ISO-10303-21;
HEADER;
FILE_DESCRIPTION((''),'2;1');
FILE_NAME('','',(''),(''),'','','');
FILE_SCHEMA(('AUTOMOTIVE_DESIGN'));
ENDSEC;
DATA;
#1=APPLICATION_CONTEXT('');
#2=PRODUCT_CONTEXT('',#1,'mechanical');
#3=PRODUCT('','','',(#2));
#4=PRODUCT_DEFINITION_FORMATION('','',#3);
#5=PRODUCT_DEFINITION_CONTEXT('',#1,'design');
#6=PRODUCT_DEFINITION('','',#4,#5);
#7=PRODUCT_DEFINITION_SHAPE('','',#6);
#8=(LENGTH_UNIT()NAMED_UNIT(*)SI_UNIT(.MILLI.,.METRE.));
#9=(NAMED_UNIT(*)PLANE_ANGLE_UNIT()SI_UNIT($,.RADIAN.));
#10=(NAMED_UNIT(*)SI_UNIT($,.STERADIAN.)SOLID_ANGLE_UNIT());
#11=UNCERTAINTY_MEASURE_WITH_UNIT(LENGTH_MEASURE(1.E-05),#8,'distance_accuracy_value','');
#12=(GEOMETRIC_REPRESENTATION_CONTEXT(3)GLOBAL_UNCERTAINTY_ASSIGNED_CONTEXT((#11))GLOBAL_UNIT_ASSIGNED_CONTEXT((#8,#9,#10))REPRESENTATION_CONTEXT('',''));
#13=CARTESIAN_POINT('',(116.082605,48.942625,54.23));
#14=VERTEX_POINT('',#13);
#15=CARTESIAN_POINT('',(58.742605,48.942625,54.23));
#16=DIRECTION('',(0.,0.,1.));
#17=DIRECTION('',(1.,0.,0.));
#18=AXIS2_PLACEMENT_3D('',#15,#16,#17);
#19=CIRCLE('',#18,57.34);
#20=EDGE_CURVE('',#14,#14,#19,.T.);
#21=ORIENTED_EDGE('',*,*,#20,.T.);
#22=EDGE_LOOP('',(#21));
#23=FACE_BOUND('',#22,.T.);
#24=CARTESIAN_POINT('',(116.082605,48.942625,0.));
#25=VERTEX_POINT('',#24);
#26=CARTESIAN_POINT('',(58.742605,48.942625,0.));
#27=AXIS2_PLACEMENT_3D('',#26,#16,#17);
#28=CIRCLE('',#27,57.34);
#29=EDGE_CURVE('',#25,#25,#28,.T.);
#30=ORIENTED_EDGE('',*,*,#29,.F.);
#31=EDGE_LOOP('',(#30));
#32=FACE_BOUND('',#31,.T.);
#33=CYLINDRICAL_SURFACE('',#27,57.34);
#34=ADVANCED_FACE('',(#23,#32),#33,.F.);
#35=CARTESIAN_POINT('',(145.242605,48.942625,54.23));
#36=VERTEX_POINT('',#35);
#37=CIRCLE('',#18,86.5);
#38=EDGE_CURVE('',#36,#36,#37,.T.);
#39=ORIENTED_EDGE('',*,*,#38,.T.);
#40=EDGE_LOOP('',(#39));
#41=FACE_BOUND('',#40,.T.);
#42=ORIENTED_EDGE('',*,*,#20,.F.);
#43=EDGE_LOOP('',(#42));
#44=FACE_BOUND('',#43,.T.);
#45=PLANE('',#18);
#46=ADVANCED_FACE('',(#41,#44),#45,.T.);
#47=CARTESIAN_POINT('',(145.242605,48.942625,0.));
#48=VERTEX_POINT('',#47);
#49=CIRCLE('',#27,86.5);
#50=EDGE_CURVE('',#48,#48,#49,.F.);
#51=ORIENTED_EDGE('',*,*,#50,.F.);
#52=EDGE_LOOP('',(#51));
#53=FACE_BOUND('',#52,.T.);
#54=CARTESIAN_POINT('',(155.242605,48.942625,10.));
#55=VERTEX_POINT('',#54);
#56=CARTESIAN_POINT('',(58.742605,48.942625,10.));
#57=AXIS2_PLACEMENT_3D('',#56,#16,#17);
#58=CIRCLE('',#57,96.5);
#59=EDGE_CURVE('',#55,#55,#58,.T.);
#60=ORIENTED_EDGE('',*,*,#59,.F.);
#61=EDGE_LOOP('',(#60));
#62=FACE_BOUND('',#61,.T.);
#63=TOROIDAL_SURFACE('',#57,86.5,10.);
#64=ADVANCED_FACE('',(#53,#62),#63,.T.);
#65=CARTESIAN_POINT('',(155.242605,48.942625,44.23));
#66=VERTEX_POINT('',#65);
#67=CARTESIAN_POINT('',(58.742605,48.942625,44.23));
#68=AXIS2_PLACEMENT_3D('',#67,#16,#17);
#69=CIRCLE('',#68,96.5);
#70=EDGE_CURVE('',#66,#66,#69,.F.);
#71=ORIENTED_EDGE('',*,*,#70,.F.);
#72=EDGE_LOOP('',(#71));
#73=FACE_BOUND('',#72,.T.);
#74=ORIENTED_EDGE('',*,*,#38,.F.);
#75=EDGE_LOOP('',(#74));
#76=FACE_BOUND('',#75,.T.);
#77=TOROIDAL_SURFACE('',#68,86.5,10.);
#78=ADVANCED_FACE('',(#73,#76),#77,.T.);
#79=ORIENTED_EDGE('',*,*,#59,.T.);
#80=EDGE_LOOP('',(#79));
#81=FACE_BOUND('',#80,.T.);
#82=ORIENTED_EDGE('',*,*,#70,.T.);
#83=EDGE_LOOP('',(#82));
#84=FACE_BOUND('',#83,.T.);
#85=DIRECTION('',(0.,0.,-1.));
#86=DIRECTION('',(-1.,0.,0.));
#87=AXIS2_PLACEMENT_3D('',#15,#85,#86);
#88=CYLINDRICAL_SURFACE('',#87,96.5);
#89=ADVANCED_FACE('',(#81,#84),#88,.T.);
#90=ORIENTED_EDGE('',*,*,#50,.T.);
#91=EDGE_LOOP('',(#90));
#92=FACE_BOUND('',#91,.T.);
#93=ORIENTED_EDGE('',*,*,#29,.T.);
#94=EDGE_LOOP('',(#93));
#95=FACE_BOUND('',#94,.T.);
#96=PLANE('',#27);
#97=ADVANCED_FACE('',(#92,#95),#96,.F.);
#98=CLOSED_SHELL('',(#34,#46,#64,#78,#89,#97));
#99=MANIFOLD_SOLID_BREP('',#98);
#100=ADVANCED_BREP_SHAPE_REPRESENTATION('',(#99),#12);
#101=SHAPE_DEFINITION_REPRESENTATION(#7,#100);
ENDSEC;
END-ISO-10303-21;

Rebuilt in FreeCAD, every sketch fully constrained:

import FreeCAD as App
import Part
import Sketcher
Q = App.Units.Quantity


def edges_at(feature, points):
    """Names of the edges that pass closest to the given points."""
    edges = feature.Shape.Edges
    near = lambda p: min(range(len(edges)), key=lambda i: edges[i].distToShape(Part.Vertex(*p))[0])
    return sorted({f"Edge{near(p) + 1}" for p in points})

doc = App.newDocument("Part")
body = doc.addObject("PartDesign::Body", "Body")

# Sketch on XY plane
sketch1 = body.newObject("Sketcher::SketchObject", "Sketch")
sketch1.AttachmentSupport = (doc.getObject("XY_Plane"), [""])
sketch1.MapMode = "FlatFace"
sketch1.addGeometry(Part.Circle(App.Vector(59, 49, 0), App.Vector(0, 0, 1), 96), False)
sketch1.addConstraint(Sketcher.Constraint("Diameter", 0, Q("193 mm")))
sketch1.addConstraint(Sketcher.Constraint("DistanceX", -1, 1, 0, 3, Q("58.742605 mm")))
sketch1.addConstraint(Sketcher.Constraint("DistanceY", -1, 1, 0, 3, Q("48.942625 mm")))
pad1 = body.newObject("PartDesign::Pad", "Pad")
pad1.Profile = sketch1
pad1.Length = 54.23
doc.recompute()

fillet = body.newObject("PartDesign::Fillet", "Fillet")
fillet.Base = (pad1, edges_at(pad1, [(-37.757, 48.943, 0), (-37.757, 48.943, 54.23)]))
fillet.Radius = 10

# Sketch on XY plane
sketch2 = body.newObject("Sketcher::SketchObject", "Sketch001")
sketch2.AttachmentSupport = (doc.getObject("XY_Plane"), [""])
sketch2.MapMode = "FlatFace"
sketch2.AttachmentOffset = App.Placement(App.Vector(0, 0, 54.23), App.Rotation())
sketch2.addGeometry(Part.Circle(App.Vector(59, 49, 0), App.Vector(0, 0, 1), 57), False)
sketch2.addConstraint(Sketcher.Constraint("Diameter", 0, Q("114.68 mm")))
sketch2.addConstraint(Sketcher.Constraint("DistanceX", -1, 1, 0, 3, Q("58.742605 mm")))
sketch2.addConstraint(Sketcher.Constraint("DistanceY", -1, 1, 0, 3, Q("48.942625 mm")))
pocket1 = body.newObject("PartDesign::Pocket", "Pocket")
pocket1.Profile = sketch2
pocket1.Length = 54.23

doc.recompute()
